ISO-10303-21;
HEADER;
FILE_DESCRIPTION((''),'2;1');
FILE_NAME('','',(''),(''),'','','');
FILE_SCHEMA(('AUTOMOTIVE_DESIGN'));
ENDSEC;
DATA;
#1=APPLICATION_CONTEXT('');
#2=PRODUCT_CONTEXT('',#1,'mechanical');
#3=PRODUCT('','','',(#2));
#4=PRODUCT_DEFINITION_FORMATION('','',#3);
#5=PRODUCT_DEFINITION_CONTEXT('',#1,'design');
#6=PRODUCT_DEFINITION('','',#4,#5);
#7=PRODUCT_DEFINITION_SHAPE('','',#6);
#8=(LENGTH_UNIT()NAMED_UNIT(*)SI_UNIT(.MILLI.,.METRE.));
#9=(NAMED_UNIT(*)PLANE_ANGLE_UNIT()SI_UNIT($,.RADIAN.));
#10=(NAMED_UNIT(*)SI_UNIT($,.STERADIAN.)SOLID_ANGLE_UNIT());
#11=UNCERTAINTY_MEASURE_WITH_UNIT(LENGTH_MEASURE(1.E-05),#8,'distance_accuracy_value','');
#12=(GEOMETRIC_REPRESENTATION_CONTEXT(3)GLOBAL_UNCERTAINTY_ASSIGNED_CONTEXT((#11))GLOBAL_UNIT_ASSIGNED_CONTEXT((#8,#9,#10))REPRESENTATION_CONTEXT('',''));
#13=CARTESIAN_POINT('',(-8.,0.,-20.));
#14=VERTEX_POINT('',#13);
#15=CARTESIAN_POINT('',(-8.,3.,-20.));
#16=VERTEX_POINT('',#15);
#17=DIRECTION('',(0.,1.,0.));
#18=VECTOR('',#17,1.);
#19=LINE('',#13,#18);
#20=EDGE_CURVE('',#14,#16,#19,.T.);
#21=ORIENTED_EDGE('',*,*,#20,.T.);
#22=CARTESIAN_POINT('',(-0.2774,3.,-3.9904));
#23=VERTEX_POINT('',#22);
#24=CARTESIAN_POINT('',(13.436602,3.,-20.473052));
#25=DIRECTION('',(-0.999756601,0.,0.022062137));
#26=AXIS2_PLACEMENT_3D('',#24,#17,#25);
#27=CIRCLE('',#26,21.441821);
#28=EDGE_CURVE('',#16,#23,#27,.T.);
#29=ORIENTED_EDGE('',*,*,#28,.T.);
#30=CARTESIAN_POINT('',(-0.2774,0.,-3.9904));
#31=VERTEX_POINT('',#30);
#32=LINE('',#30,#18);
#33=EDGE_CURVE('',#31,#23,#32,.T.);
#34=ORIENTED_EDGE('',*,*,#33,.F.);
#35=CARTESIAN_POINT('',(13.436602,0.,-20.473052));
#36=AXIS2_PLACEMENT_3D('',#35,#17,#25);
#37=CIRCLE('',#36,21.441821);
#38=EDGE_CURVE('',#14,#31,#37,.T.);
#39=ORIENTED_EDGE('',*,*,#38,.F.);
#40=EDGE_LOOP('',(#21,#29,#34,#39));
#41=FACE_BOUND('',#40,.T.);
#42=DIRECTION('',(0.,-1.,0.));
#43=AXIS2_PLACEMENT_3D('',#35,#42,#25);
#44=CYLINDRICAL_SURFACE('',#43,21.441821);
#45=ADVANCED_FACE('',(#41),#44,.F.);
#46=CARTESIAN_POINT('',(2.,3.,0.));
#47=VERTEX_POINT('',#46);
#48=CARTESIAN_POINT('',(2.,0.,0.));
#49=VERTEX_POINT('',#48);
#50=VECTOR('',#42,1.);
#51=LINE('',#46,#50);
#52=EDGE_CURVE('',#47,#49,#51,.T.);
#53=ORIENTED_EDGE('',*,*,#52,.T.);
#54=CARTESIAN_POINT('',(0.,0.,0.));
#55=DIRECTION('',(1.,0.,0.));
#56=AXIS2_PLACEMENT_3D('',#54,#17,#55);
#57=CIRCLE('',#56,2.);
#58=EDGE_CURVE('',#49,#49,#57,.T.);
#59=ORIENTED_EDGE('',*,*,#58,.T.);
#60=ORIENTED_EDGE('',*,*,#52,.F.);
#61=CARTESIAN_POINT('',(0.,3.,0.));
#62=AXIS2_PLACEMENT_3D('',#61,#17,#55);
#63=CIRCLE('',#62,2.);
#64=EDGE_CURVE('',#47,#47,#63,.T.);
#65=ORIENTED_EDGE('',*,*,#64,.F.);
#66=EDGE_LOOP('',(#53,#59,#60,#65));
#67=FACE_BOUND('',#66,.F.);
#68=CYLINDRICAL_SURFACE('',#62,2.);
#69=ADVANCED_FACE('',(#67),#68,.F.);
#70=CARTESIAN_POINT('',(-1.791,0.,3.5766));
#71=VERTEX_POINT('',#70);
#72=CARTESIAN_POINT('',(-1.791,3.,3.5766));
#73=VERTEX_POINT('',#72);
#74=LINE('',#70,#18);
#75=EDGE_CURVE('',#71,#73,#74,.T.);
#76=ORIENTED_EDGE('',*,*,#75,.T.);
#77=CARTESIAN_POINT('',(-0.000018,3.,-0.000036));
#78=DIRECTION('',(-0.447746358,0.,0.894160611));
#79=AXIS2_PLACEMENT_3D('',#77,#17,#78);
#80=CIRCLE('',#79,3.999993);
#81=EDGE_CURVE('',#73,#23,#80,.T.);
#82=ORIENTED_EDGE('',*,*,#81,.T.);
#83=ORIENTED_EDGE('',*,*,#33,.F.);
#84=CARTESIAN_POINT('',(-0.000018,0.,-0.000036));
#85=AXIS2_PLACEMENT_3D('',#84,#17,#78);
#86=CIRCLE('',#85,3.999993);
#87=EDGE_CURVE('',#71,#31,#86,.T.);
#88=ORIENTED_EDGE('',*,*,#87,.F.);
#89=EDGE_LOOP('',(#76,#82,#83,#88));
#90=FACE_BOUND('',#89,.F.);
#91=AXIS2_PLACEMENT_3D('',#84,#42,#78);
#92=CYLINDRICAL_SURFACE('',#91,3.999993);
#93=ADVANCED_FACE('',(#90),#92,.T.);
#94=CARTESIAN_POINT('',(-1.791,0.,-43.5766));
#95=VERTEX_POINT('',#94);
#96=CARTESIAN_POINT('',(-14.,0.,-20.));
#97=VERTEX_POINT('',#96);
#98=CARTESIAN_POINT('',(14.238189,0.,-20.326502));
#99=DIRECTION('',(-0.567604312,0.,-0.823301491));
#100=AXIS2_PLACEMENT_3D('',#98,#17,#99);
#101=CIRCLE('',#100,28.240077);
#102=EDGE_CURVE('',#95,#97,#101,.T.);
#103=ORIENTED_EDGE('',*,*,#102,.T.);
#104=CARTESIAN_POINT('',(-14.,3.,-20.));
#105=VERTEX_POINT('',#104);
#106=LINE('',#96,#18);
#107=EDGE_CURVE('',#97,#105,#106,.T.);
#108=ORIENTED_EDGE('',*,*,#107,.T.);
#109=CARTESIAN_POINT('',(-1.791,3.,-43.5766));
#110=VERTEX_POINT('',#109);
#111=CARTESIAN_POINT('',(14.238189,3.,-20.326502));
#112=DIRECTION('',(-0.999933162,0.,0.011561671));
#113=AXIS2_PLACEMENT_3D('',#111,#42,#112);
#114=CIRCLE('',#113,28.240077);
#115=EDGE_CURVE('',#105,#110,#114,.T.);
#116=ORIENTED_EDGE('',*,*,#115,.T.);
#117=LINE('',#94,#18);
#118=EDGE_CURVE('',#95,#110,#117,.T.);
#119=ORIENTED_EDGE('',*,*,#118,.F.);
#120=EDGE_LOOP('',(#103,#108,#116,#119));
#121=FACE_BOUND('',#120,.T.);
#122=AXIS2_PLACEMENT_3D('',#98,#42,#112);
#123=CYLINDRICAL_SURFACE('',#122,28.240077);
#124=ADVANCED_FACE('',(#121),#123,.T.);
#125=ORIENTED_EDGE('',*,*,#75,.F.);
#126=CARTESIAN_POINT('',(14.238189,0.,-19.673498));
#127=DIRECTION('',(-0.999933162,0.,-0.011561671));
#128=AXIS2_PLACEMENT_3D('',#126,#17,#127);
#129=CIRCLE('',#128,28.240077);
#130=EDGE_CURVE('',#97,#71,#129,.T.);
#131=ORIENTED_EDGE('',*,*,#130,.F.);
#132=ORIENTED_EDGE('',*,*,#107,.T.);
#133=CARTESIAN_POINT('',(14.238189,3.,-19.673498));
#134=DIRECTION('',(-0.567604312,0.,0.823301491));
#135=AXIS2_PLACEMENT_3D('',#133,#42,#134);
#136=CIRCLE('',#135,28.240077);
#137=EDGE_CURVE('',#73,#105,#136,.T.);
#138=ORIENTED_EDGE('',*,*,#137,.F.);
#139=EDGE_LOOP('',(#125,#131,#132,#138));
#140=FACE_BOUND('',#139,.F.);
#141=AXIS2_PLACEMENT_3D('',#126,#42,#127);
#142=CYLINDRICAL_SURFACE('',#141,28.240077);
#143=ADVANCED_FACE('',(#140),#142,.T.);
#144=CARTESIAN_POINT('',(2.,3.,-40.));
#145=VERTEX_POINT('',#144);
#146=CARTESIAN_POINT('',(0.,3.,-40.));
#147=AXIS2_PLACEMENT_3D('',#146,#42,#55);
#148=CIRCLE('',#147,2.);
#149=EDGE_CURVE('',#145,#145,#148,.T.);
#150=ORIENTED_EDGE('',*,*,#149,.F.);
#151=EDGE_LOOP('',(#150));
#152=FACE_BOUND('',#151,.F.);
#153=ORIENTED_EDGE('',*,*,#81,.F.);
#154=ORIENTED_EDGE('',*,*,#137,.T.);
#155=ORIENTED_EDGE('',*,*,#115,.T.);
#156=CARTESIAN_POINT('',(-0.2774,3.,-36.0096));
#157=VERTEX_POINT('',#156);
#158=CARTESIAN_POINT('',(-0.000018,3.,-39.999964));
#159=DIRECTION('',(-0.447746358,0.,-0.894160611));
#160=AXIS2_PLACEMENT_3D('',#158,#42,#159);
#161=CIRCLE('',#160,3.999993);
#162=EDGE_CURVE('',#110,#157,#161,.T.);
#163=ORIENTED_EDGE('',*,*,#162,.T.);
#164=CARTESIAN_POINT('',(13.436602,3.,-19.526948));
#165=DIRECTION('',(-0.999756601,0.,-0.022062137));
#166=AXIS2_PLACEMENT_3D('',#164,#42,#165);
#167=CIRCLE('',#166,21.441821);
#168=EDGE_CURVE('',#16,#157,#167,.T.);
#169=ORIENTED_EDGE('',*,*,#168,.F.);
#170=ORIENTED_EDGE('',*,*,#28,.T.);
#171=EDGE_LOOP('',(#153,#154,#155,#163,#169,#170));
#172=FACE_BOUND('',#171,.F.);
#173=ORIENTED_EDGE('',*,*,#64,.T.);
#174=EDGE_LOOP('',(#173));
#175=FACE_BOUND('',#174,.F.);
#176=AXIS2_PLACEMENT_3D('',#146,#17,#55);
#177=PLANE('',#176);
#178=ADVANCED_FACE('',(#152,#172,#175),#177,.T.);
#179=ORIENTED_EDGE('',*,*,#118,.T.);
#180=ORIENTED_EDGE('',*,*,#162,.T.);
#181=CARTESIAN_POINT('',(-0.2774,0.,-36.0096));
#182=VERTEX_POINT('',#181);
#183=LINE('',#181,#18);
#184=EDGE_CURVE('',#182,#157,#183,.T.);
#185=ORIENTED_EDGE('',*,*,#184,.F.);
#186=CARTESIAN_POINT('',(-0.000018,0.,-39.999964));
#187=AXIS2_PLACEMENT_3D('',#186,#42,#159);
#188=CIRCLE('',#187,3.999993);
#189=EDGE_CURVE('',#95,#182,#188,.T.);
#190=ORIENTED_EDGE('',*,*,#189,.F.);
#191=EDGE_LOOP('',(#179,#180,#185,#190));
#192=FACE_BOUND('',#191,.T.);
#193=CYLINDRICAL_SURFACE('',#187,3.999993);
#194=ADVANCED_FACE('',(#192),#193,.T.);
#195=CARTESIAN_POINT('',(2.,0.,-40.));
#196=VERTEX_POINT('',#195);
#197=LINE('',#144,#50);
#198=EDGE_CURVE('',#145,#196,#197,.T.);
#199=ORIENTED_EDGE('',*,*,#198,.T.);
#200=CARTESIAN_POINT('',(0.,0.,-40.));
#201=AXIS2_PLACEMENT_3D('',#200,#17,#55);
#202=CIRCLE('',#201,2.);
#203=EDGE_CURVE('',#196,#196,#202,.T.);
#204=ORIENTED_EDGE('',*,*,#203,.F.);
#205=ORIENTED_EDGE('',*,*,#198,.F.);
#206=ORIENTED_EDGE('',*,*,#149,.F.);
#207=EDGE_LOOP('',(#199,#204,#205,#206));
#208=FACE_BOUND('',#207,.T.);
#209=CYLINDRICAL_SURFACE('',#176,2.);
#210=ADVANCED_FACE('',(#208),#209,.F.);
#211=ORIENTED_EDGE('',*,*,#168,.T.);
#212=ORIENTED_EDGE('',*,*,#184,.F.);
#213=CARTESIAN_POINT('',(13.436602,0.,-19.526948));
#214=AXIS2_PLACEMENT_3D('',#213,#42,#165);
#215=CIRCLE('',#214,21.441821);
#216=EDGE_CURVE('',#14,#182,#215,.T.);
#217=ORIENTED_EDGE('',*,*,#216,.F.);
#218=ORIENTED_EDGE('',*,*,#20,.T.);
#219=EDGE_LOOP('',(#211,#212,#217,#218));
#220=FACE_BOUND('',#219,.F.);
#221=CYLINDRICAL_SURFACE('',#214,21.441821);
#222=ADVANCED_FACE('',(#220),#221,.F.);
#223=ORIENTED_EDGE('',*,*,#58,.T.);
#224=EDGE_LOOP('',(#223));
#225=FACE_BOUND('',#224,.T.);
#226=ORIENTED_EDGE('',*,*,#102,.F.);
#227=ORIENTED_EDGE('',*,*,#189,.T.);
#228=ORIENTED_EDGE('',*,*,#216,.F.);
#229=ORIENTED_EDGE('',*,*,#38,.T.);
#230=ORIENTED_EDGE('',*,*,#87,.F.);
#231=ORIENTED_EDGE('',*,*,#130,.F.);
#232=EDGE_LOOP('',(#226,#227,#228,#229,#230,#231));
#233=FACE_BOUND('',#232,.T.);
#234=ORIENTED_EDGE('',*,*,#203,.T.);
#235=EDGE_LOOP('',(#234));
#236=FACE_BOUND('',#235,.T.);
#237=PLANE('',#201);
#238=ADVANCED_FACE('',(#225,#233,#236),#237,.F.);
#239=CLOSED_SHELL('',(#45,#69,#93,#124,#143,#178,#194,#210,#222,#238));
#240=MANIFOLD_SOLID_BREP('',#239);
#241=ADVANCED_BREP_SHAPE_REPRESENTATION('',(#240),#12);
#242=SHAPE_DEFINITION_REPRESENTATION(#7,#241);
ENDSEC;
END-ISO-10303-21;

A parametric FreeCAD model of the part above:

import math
import FreeCAD as App
import Part
import Sketcher
from FreeCAD import Vector

doc = App.newDocument("Part")
params = doc.addObject("Spreadsheet::Sheet", "Params")
for row, (alias, value) in enumerate([
    ("sketch1_radius", "4 mm"),
    ("sketch1_width", "6 mm"),
    ("sketch1_radius2", "28.24 mm"),
    ("sketch1_height", "23.25 mm"),
    ("pad1_length", "3 mm"),
    ("sketch2_diameter", "4 mm"),
    ("pocket1_length", "10 mm"),
], start=1):
    params.set(f"A{row}", alias)
    params.set(f"B{row}", "=" + value)
    params.setAlias(f"B{row}", alias)

body = doc.addObject("PartDesign::Body", "Body")

# Sketch on XZ plane
sketch1 = doc.addObject("Sketcher::SketchObject", "Sketch")
body.addObject(sketch1)
sketch1.AttachmentSupport = (doc.XZ_Plane, [""])
sketch1.MapMode = "FlatFace"
sketch1.addGeometry([
    Part.ArcOfCircle(Part.Circle(Vector(14.2382, -19.6735, 0), Vector(0, 0, 1), 28.240087), math.radians(124.58335), math.radians(180.662444)),
    Part.ArcOfCircle(Part.Circle(Vector(0, 0, 0), Vector(0, 0, 1), 3.999969), math.radians(-93.976624), math.radians(116.599643)),
    Part.ArcOfCircle(Part.Circle(Vector(13.4368, -20.4731, 0), Vector(0, 0, 1), 21.44202), math.radians(129.761676), math.radians(178.735715)),
    Part.LineSegment(Vector(-8, -20, 0), Vector(-14, -20, 0)),
], False)
sketch1.addConstraint([
    Sketcher.Constraint("Coincident", 0, 1, 1, 2),
    Sketcher.Constraint("Coincident", 1, 1, 2, 1),
    Sketcher.Constraint("Coincident", 2, 2, 3, 1),
    Sketcher.Constraint("Coincident", 3, 2, 0, 2),
    Sketcher.Constraint("Horizontal", 3),
    Sketcher.Constraint("Coincident", 1, 3, -1, 1),
    Sketcher.Constraint("Radius", 1, 4.0),
    Sketcher.Constraint("DistanceX", 3, 2, 3, 1, 6.0),
    Sketcher.Constraint("DistanceX", 2, 2, -1, 1, 8.0),
    Sketcher.Constraint("DistanceY", 2, 2, -1, 1, 20.0),
    Sketcher.Constraint("Radius", 0, 28.24),
    Sketcher.Constraint("Radius", 2, 21.442),
    Sketcher.Constraint("DistanceY", 0, 3, 0, 1, 23.25),
    Sketcher.Constraint("DistanceY", 2, 3, -1, 1, 20.473),
])
sketch1.setExpression("Constraints[6]", "Params.sketch1_radius")
sketch1.setExpression("Constraints[7]", "Params.sketch1_width")
sketch1.setExpression("Constraints[10]", "Params.sketch1_radius2")
sketch1.setExpression("Constraints[12]", "Params.sketch1_height")
pad1 = doc.addObject("PartDesign::Pad", "Pad")
body.addObject(pad1)
pad1.Profile = sketch1
pad1.setExpression("Length", "Params.pad1_length")
pad1.Reversed = True

# Sketch on XZ plane
sketch2 = doc.addObject("Sketcher::SketchObject", "Sketch001")
body.addObject(sketch2)
sketch2.AttachmentSupport = (doc.XZ_Plane, [""])
sketch2.MapMode = "FlatFace"
sketch2.AttachmentOffset = App.Placement(Vector(0, 0, -3), App.Rotation())
sketch2.addGeometry(Part.Circle(Vector(0, 0, 0), Vector(0, 0, 1), 2), False)
sketch2.addConstraint([
    Sketcher.Constraint("Coincident", 0, 3, -1, 1),
    Sketcher.Constraint("Diameter", 0, 4.0),
])
sketch2.setExpression("Constraints[1]", "Params.sketch2_diameter")
pocket1 = doc.addObject("PartDesign::Pocket", "Pocket")
body.addObject(pocket1)
pocket1.Profile = sketch2
pocket1.setExpression("Length", "Params.pocket1_length")
pocket1.Reversed = True
doc.recompute()

datumplane = doc.addObject("PartDesign::Plane", "DatumPlane")
body.addObject(datumplane)
datumplane.AttachmentSupport = (doc.XY_Plane, [""])
datumplane.MapMode = "FlatFace"
datumplane.AttachmentOffset = App.Placement(Vector(0, 0, -20), App.Rotation())
mirrored = doc.addObject("PartDesign::Mirrored", "Mirrored")
body.addObject(mirrored)
mirrored.Originals = [pad1, pocket1]
mirrored.MirrorPlane = (datumplane, [""])
body.Tip = mirrored

doc.recompute()
